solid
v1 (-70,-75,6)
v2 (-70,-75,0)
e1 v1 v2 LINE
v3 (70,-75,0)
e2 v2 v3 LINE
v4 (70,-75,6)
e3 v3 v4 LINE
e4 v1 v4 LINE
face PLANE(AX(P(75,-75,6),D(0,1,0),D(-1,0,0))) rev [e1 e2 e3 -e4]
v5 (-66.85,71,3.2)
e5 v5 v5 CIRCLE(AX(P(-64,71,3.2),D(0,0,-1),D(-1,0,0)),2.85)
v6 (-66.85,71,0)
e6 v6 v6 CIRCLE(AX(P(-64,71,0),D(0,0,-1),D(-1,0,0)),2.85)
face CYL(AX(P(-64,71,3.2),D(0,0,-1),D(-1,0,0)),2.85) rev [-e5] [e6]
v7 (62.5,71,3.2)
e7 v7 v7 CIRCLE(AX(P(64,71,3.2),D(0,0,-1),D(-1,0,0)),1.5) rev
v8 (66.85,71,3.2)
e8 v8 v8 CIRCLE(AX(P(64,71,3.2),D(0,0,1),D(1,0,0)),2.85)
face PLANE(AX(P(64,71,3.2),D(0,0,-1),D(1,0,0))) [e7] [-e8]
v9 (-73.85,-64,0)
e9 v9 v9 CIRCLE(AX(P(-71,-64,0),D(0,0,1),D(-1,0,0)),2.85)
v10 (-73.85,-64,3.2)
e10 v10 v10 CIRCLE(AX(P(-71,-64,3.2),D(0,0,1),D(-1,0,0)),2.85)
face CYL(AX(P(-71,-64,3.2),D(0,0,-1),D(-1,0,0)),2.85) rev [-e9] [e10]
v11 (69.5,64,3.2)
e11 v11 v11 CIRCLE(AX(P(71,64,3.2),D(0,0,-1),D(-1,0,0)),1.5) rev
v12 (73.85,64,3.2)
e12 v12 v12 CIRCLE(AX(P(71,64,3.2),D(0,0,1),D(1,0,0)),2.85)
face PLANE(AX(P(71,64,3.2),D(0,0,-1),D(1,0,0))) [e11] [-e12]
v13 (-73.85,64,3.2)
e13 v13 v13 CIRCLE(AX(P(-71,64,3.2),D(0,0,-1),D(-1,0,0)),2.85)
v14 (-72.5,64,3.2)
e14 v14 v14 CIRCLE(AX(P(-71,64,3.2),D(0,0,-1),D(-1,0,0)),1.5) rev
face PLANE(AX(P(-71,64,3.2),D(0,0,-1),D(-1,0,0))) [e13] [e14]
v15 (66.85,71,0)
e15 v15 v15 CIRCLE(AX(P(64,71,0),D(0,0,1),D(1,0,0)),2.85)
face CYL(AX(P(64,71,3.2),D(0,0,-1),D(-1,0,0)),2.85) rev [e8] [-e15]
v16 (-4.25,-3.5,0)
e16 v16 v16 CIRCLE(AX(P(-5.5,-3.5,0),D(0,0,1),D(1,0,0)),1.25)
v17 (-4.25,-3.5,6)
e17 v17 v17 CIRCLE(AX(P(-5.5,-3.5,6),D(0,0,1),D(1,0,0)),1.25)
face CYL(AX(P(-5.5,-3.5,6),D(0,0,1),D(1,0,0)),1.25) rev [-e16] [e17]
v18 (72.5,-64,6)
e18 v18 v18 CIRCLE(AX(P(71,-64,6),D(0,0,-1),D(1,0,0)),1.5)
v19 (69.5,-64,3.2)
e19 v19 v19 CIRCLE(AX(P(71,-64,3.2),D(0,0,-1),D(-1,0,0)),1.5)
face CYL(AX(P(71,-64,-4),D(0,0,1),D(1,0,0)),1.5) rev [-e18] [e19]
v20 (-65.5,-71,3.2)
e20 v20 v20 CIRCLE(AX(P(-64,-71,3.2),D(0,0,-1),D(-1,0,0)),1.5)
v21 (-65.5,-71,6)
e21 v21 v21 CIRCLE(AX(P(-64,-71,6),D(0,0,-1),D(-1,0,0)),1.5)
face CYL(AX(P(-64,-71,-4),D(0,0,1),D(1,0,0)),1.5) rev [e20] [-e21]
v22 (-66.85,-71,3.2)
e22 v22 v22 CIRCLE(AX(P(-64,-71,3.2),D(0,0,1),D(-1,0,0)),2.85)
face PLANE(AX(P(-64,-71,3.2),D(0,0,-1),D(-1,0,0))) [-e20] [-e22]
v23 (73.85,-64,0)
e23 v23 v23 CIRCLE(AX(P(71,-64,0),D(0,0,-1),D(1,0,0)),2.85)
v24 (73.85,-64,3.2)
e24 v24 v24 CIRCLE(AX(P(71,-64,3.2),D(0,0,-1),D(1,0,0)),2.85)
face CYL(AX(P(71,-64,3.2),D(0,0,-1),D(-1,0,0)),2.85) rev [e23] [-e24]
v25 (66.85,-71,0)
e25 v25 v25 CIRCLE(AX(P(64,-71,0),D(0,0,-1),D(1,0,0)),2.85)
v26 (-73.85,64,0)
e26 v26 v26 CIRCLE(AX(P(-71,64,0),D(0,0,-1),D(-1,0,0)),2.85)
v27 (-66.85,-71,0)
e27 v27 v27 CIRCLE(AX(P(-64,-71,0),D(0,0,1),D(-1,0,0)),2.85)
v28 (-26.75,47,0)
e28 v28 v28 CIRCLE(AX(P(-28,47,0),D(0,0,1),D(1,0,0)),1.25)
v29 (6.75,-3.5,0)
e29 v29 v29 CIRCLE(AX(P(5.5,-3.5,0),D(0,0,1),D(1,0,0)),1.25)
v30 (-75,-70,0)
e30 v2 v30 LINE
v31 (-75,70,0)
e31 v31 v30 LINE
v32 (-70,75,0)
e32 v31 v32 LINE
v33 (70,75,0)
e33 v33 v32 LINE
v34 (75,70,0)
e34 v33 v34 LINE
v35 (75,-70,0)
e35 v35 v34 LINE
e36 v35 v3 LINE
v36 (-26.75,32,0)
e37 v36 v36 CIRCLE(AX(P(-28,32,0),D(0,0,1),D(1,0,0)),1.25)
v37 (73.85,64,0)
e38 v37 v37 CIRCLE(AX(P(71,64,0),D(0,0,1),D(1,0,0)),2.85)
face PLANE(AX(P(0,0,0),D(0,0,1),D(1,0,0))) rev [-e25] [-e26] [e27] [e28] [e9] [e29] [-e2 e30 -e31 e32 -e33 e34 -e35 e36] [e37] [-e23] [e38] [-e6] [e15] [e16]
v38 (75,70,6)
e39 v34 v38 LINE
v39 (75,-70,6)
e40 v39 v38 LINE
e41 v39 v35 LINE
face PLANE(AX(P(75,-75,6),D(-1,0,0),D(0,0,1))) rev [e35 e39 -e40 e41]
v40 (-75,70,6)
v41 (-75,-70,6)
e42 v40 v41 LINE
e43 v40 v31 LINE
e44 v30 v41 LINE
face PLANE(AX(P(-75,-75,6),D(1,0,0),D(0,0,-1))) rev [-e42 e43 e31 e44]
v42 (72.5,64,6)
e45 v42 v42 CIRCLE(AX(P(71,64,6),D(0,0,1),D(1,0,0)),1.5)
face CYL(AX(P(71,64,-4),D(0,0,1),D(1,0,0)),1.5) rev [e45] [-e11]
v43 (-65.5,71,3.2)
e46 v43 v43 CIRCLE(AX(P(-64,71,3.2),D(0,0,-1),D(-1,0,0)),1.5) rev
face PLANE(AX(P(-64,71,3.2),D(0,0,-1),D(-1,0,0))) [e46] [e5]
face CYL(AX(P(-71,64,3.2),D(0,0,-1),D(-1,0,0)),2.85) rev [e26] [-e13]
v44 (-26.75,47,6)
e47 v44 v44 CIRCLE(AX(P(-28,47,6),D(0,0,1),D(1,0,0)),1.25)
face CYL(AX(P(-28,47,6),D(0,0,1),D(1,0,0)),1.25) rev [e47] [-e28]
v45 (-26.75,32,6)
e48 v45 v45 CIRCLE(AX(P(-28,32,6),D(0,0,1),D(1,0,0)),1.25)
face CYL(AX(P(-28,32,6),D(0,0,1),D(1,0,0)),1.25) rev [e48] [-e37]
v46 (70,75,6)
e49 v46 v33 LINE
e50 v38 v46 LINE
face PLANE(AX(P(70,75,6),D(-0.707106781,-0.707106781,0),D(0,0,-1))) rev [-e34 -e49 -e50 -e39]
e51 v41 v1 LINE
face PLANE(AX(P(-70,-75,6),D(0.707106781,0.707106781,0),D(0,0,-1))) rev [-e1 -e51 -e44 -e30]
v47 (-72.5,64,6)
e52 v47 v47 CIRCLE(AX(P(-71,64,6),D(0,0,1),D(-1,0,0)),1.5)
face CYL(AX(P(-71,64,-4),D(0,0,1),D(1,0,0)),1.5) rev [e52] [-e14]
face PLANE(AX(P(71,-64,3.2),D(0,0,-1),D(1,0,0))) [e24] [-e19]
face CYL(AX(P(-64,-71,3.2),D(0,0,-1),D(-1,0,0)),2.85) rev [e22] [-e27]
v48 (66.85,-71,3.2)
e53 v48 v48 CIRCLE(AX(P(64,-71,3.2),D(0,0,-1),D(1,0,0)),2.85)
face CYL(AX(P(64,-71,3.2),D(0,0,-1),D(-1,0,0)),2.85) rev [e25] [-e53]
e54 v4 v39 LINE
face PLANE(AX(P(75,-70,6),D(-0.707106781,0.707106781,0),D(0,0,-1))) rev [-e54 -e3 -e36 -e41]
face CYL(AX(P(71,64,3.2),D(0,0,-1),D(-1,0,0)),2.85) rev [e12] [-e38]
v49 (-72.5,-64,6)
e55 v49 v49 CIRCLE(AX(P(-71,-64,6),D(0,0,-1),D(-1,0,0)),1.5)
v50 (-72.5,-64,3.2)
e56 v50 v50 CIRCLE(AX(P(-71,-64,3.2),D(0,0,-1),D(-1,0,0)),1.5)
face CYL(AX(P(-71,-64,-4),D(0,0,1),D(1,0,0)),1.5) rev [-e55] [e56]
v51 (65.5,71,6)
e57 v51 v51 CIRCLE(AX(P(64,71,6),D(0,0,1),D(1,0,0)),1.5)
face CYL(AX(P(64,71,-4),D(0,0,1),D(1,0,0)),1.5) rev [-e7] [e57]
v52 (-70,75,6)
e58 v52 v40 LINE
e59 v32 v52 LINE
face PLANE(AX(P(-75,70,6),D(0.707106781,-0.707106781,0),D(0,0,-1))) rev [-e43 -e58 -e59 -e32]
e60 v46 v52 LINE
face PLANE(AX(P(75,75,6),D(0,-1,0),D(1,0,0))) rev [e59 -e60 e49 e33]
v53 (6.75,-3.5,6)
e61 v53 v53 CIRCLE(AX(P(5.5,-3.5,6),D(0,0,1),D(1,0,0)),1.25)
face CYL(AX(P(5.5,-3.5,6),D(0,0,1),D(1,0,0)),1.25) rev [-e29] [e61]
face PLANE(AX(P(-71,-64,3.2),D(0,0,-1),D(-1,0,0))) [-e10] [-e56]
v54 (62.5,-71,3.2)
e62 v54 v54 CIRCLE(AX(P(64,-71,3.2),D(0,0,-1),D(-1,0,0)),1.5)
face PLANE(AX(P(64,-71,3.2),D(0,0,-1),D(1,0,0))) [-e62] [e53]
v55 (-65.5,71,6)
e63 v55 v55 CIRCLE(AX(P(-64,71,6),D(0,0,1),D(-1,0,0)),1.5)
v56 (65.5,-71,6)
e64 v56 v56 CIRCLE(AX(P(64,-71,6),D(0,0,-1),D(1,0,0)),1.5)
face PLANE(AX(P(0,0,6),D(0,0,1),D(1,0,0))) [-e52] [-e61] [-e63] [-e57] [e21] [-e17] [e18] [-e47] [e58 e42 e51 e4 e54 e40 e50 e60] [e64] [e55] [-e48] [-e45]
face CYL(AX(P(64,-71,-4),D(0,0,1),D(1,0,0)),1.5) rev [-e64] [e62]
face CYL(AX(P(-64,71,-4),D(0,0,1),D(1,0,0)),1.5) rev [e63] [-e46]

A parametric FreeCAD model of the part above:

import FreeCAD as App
import Part
import Sketcher
Q = App.Units.Quantity


def edges_at(feature, points):
    """Names of the edges that pass closest to the given points."""
    edges = feature.Shape.Edges
    near = lambda p: min(range(len(edges)), key=lambda i: edges[i].distToShape(Part.Vertex(*p))[0])
    return sorted({f"Edge{near(p) + 1}" for p in points})


def add_polygon(sketch, points):
    """Adds a closed chain of lines whose ends are joined by coincident constraints."""
    first, n = sketch.GeometryCount, len(points)
    for a, b in zip(points, points[1:] + points[:1]):
        sketch.addGeometry(Part.LineSegment(App.Vector(*a, 0), App.Vector(*b, 0)), False)
    for i in range(n):
        sketch.addConstraint(Sketcher.Constraint("Coincident", first + i, 2, first + (i + 1) % n, 1))

doc = App.newDocument("Part")
body = doc.addObject("PartDesign::Body", "Body")

sketch1 = body.newObject("Sketcher::SketchObject", "Sketch")
sketch1.AttachmentSupport = (doc.getObject("XY_Plane"), [""])
sketch1.MapMode = "FlatFace"
add_polygon(sketch1, [(-75, 75), (-75, -75), (75, -75), (75, 75)])
sketch1.addConstraint(Sketcher.Constraint("Vertical", 0))
sketch1.addConstraint(Sketcher.Constraint("Horizontal", 1))
sketch1.addConstraint(Sketcher.Constraint("Vertical", 2))
sketch1.addConstraint(Sketcher.Constraint("Horizontal", 3))
sketch1.addConstraint(Sketcher.Constraint("Symmetric", 0, 2, 2, 2, -1, 1))
sketch1.addConstraint(Sketcher.Constraint("Equal", 3, 0))
sketch1.addConstraint(Sketcher.Constraint("DistanceX", 1, 1, 1, 2, Q("150 mm")))
pad1 = body.newObject("PartDesign::Pad", "Pad")
pad1.Profile = sketch1
pad1.Length = 6
doc.recompute()

chamfer = body.newObject("PartDesign::Chamfer", "Chamfer")
chamfer.Base = (pad1, edges_at(pad1, [
    (-75, 75, 3),
    (75, 75, 3),
    (75, -75, 3),
    (-75, -75, 3),
]))
chamfer.Size = 5

sketch2 = body.newObject("Sketcher::SketchObject", "Sketch001")
sketch2.AttachmentSupport = (doc.getObject("XY_Plane"), [""])
sketch2.MapMode = "FlatFace"
sketch2.AttachmentOffset = App.Placement(App.Vector(0, 0, 6), App.Rotation())
sketch2.addGeometry(Part.Circle(App.Vector(64, 71, 0), App.Vector(0, 0, 1), 1.5), False)
sketch2.addGeometry(Part.Circle(App.Vector(71, 64, 0), App.Vector(0, 0, 1), 1.5), False)
sketch2.addGeometry(Part.Circle(App.Vector(-71, 64, 0), App.Vector(0, 0, 1), 1.5), False)
sketch2.addGeometry(Part.Circle(App.Vector(-64, 71, 0), App.Vector(0, 0, 1), 1.5), False)
sketch2.addConstraint(Sketcher.Constraint("Equal", 0, 1))
sketch2.addConstraint(Sketcher.Constraint("Equal", 1, 2))
sketch2.addConstraint(Sketcher.Constraint("Equal", 2, 3))
sketch2.addConstraint(Sketcher.Constraint("Symmetric", 1, 3, 2, 3, -2))
sketch2.addConstraint(Sketcher.Constraint("Symmetric", 0, 3, 3, 3, -2))
sketch2.addConstraint(Sketcher.Constraint("Diameter", 0, Q("3 mm")))
sketch2.addConstraint(Sketcher.Constraint("DistanceX", -1, 1, 0, 3, Q("64 mm")))
sketch2.addConstraint(Sketcher.Constraint("DistanceY", -1, 1, 0, 3, Q("71 mm")))
sketch2.addConstraint(Sketcher.Constraint("DistanceX", -1, 1, 1, 3, Q("71 mm")))
sketch2.addConstraint(Sketcher.Constraint("DistanceY", -1, 1, 1, 3, Q("64 mm")))
pocket1 = body.newObject("PartDesign::Pocket", "Pocket")
pocket1.Profile = sketch2
pocket1.Length = 10

sketch3 = body.newObject("Sketcher::SketchObject", "Sketch002")
sketch3.AttachmentSupport = (doc.getObject("XY_Plane"), [""])
sketch3.MapMode = "FlatFace"
sketch3.addGeometry(Part.Circle(App.Vector(-64, 71, 0), App.Vector(0, 0, 1), 2.9), False)
sketch3.addGeometry(Part.Circle(App.Vector(-71, 64, 0), App.Vector(0, 0, 1), 2.9), False)
sketch3.addConstraint(Sketcher.Constraint("Equal", 0, 1))
sketch3.addConstraint(Sketcher.Constraint("Diameter", 0, Q("5.7 mm")))
sketch3.addConstraint(Sketcher.Constraint("DistanceX", 0, 3, -1, 1, Q("64 mm")))
sketch3.addConstraint(Sketcher.Constraint("DistanceY", -1, 1, 0, 3, Q("71 mm")))
sketch3.addConstraint(Sketcher.Constraint("DistanceX", 1, 3, -1, 1, Q("71 mm")))
sketch3.addConstraint(Sketcher.Constraint("DistanceY", -1, 1, 1, 3, Q("64 mm")))
pocket2 = body.newObject("PartDesign::Pocket", "Pocket001")
pocket2.Profile = sketch3
pocket2.Length = 3.2
pocket2.Reversed = True
doc.recompute()

mirrored = body.newObject("PartDesign::Mirrored", "Mirrored")
mirrored.Originals = [pocket2]
mirrored.MirrorPlane = (doc.getObject("YZ_Plane"), [""])
body.Tip = mirrored
doc.recompute()

mirrored2 = body.newObject("PartDesign::Mirrored", "Mirrored001")
mirrored2.Originals = [pocket1, pocket2]
mirrored2.MirrorPlane = (doc.getObject("XZ_Plane"), [""])
body.Tip = mirrored2

sketch4 = body.newObject("Sketcher::SketchObject", "Sketch003")
sketch4.AttachmentSupport = (doc.getObject("XY_Plane"), [""])
sketch4.MapMode = "FlatFace"
sketch4.addGeometry(Part.Circle(App.Vector(64, -71, 0), App.Vector(0, 0, 1), 2.9), False)
sketch4.addGeometry(Part.Circle(App.Vector(71, -64, 0), App.Vector(0, 0, 1), 2.9), False)
sketch4.addConstraint(Sketcher.Constraint("Equal", 0, 1))
sketch4.addConstraint(Sketcher.Constraint("Diameter", 0, Q("5.7 mm")))
sketch4.addConstraint(Sketcher.Constraint("DistanceX", -1, 1, 0, 3, Q("64 mm")))
sketch4.addConstraint(Sketcher.Constraint("DistanceY", 0, 3, -1, 1, Q("71 mm")))
sketch4.addConstraint(Sketcher.Constraint("DistanceX", -1, 1, 1, 3, Q("71 mm")))
sketch4.addConstraint(Sketcher.Constraint("DistanceY", 1, 3, -1, 1, Q("64 mm")))
pocket3 = body.newObject("PartDesign::Pocket", "Pocket002")
pocket3.Profile = sketch4
pocket3.Length = 3.2
pocket3.Reversed = True

sketch5 = body.newObject("Sketcher::SketchObject", "Sketch004")
sketch5.AttachmentSupport = (doc.getObject("XY_Plane"), [""])
sketch5.MapMode = "FlatFace"
sketch5.AttachmentOffset = App.Placement(App.Vector(0, 0, 6), App.Rotation())
sketch5.addGeometry(Part.Circle(App.Vector(-5.5, -3.5, 0), App.Vector(0, 0, 1), 1.2), False)
sketch5.addGeometry(Part.Circle(App.Vector(5.5, -3.5, 0), App.Vector(0, 0, 1), 1.2), False)
sketch5.addConstraint(Sketcher.Constraint("Equal", 0, 1))
sketch5.addConstraint(Sketcher.Constraint("Symmetric", 0, 3, 1, 3, -2))
sketch5.addConstraint(Sketcher.Constraint("Diameter", 0, Q("2.5 mm")))
sketch5.addConstraint(Sketcher.Constraint("DistanceX", 0, 3, 1, 3, Q("11 mm")))
sketch5.addConstraint(Sketcher.Constraint("DistanceY", 0, 3, -1, 1, Q("3.5 mm")))
doc.recompute()
hole = body.newObject("PartDesign::Hole", "Hole")
hole.Profile = sketch5
hole.ThreadType = "None"
hole.Diameter = 2.5
hole.DepthType = "Dimension"
hole.Depth = 7.5
hole.DrillPoint = "Angled"
hole.DrillPointAngle = 118

sketch6 = body.newObject("Sketcher::SketchObject", "Sketch005")
sketch6.AttachmentSupport = (doc.getObject("XY_Plane"), [""])
sketch6.MapMode = "FlatFace"
sketch6.AttachmentOffset = App.Placement(App.Vector(0, 0, 6), App.Rotation())
sketch6.addGeometry(Part.Circle(App.Vector(-28, 47, 0), App.Vector(0, 0, 1), 1.2), False)
sketch6.addGeometry(Part.Circle(App.Vector(-28, 32, 0), App.Vector(0, 0, 1), 1.2), False)
sketch6.addConstraint(Sketcher.Constraint("Equal", 0, 1))
sketch6.addConstraint(Sketcher.Constraint("Vertical", 0, 3, 1, 3))
sketch6.addConstraint(Sketcher.Constraint("Diameter", 0, Q("2.5 mm")))
sketch6.addConstraint(Sketcher.Constraint("DistanceX", 0, 3, -1, 1, Q("28 mm")))
sketch6.addConstraint(Sketcher.Constraint("DistanceY", -1, 1, 0, 3, Q("47 mm")))
sketch6.addConstraint(Sketcher.Constraint("DistanceY", -1, 1, 1, 3, Q("32 mm")))
doc.recompute()
hole2 = body.newObject("PartDesign::Hole", "Hole001")
hole2.Profile = sketch6
hole2.ThreadType = "None"
hole2.Diameter = 2.5
hole2.DepthType = "Dimension"
hole2.Depth = 7.5
hole2.DrillPoint = "Angled"
hole2.DrillPointAngle = 118

doc.recompute()
